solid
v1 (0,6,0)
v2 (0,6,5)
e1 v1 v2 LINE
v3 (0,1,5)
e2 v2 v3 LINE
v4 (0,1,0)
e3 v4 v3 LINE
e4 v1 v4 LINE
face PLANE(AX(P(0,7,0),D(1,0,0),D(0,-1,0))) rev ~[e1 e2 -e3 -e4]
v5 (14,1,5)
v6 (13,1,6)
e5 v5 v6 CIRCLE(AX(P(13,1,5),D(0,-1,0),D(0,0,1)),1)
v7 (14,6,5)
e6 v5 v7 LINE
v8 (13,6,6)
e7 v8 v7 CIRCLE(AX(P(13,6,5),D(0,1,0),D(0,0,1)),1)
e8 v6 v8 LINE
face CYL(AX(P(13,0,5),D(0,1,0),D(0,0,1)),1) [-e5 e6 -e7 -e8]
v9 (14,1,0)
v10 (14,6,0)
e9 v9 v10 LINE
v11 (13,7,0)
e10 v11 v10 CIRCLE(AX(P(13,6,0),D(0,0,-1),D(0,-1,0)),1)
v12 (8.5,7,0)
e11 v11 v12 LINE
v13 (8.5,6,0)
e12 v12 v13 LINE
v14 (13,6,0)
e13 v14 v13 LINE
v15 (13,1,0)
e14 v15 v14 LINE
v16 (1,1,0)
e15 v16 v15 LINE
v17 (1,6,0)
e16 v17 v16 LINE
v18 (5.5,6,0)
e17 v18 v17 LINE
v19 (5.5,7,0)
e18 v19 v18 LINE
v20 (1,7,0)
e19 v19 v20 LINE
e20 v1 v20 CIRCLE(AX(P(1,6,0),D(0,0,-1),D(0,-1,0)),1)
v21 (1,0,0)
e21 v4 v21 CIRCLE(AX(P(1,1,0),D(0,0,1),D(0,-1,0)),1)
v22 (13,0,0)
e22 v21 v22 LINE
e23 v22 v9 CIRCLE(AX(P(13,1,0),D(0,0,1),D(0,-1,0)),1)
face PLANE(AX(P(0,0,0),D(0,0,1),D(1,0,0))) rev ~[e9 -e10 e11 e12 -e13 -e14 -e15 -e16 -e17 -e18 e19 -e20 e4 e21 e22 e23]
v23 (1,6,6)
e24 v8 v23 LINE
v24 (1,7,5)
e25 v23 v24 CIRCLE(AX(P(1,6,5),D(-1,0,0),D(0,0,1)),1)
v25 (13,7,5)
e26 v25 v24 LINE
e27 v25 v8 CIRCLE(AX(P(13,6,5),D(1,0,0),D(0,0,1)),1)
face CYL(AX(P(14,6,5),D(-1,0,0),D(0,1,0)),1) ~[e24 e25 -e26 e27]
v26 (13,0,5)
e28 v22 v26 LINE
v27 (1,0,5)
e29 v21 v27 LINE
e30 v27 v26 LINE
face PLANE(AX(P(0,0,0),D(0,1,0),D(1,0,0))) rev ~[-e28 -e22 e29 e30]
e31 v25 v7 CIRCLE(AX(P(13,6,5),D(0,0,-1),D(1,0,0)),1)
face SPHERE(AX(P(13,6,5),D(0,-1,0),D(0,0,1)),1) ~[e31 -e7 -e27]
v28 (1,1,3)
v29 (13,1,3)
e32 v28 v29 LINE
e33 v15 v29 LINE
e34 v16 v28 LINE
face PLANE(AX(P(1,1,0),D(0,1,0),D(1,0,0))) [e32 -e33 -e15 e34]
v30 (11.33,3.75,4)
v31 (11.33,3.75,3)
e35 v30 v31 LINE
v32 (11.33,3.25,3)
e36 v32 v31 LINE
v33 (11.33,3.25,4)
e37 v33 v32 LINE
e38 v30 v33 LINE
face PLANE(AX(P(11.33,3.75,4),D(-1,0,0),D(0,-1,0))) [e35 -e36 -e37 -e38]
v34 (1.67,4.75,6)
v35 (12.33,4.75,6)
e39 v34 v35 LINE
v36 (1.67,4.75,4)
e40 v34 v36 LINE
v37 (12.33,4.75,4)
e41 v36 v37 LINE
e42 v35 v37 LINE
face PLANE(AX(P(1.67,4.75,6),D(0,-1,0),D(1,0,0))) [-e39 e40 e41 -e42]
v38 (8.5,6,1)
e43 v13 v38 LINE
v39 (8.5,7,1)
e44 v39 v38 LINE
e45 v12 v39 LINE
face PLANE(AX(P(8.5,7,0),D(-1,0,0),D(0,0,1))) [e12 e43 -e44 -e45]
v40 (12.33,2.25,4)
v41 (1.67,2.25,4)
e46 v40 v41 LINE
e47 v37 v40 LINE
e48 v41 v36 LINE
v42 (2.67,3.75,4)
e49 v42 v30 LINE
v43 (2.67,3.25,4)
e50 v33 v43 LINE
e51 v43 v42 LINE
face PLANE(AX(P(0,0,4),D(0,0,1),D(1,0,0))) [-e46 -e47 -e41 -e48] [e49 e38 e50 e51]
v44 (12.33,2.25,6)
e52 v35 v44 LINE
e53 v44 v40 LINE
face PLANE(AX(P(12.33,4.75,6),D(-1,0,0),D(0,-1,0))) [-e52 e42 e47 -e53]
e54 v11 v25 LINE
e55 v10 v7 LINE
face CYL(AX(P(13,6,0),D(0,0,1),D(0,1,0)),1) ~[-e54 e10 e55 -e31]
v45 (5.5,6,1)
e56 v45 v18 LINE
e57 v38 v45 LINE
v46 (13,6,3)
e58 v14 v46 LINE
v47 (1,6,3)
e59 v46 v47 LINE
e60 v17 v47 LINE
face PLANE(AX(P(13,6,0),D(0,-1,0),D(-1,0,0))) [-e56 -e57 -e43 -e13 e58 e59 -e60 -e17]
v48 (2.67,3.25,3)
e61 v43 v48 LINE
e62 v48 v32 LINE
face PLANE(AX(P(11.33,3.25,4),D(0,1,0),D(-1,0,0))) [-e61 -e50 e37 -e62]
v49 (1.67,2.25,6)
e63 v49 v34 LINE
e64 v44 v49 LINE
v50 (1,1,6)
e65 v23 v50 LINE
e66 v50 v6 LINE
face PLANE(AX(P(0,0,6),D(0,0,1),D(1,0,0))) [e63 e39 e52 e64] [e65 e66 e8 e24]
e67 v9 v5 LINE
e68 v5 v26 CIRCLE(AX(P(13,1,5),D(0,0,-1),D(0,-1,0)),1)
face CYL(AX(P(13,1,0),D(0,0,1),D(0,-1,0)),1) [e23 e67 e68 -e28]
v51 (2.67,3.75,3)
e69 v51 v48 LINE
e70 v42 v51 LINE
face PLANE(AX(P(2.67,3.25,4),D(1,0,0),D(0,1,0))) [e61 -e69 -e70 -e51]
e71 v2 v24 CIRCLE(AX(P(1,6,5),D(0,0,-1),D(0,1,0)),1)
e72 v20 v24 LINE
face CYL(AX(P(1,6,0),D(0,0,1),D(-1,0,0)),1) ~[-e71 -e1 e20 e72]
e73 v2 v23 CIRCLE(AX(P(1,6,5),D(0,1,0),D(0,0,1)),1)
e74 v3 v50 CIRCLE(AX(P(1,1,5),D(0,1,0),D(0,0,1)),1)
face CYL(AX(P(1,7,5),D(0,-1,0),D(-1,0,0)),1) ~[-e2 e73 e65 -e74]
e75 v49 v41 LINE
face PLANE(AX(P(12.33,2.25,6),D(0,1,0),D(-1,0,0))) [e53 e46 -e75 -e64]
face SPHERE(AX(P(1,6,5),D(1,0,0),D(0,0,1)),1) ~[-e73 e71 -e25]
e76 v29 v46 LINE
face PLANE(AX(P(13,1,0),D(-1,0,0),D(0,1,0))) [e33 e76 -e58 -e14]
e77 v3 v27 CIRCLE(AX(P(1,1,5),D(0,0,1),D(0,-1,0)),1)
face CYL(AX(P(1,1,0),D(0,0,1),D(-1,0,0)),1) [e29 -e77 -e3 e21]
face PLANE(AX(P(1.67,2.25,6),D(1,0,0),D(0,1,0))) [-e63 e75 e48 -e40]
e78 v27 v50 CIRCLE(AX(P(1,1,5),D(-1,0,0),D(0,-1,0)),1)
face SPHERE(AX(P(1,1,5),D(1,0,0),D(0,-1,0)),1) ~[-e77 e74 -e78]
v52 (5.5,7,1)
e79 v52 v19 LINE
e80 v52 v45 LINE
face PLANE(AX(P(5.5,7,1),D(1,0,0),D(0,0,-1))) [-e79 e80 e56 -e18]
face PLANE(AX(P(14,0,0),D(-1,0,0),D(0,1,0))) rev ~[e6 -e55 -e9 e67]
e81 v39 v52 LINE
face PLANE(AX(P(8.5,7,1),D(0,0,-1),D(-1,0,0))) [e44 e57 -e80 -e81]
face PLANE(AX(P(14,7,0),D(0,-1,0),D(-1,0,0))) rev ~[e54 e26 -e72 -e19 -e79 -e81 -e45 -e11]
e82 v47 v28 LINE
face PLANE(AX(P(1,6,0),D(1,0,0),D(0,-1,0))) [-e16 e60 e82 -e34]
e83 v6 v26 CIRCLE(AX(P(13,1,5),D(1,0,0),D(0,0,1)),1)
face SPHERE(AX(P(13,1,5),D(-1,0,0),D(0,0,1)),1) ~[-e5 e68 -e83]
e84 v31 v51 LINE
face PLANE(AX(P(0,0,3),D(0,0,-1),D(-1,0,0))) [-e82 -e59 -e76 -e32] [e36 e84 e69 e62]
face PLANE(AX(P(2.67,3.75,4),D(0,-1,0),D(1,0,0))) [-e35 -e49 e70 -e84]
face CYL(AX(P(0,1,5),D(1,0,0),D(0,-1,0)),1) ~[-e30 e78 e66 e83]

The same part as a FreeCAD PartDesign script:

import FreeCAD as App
import Part
import Sketcher
from FreeCAD import Vector


def edges_at(feature, points):
    """Names of the edges that pass closest to the given points."""
    edges = feature.Shape.Edges
    near = lambda p: min(range(len(edges)), key=lambda i: edges[i].distToShape(Part.Vertex(*p))[0])
    return sorted({f"Edge{near(p) + 1}" for p in points})


def add_polygon(sketch, points):
    """Adds a closed chain of lines whose ends are joined by coincident constraints."""
    first, n = sketch.GeometryCount, len(points)
    for a, b in zip(points, points[1:] + points[:1]):
        sketch.addGeometry(Part.LineSegment(App.Vector(*a, 0), App.Vector(*b, 0)), False)
    for i in range(n):
        sketch.addConstraint(Sketcher.Constraint("Coincident", first + i, 2, first + (i + 1) % n, 1))

doc = App.newDocument("Part")
body = doc.addObject("PartDesign::Body", "Body")

sketch1 = body.newObject("Sketcher::SketchObject", "Sketch")
sketch1.AttachmentSupport = (doc.getObject("XY_Plane"), [""])
sketch1.MapMode = "FlatFace"
add_polygon(sketch1, [(0, 7), (0, 0), (14, 0), (14, 7)])
sketch1.addConstraint(Sketcher.Constraint("Vertical", 0))
sketch1.addConstraint(Sketcher.Constraint("Horizontal", 1))
sketch1.addConstraint(Sketcher.Constraint("Vertical", 2))
sketch1.addConstraint(Sketcher.Constraint("Horizontal", 3))
sketch1.addConstraint(Sketcher.Constraint("Coincident", 0, 2, -1, 1))
sketch1.addConstraint(Sketcher.Constraint("DistanceX", 1, 1, 1, 2, 14.0))
sketch1.addConstraint(Sketcher.Constraint("DistanceY", 0, 2, 0, 1, 7.0))
pad1 = body.newObject("PartDesign::Pad", "Pad")
pad1.Profile = sketch1
pad1.Length = 6

sketch2 = body.newObject("Sketcher::SketchObject", "Sketch001")
sketch2.AttachmentSupport = (doc.getObject("XY_Plane"), [""])
sketch2.MapMode = "FlatFace"
sketch2.AttachmentOffset = App.Placement(Vector(0, 0, 6), App.Rotation())
add_polygon(sketch2, [(12.3, 4.8), (1.7, 4.8), (1.7, 2.2), (12.3, 2.2)])
sketch2.addConstraint(Sketcher.Constraint("Horizontal", 0))
sketch2.addConstraint(Sketcher.Constraint("Vertical", 1))
sketch2.addConstraint(Sketcher.Constraint("Horizontal", 2))
sketch2.addConstraint(Sketcher.Constraint("Vertical", 3))
sketch2.addConstraint(Sketcher.Constraint("DistanceY", 1, 2, 1, 1, 2.5))
sketch2.addConstraint(Sketcher.Constraint("DistanceX", 0, 2, 0, 1, 10.66))
sketch2.addConstraint(Sketcher.Constraint("DistanceX", -1, 1, 0, 2, 1.67))
sketch2.addConstraint(Sketcher.Constraint("DistanceY", -1, 1, 0, 2, 4.75))
pocket1 = body.newObject("PartDesign::Pocket", "Pocket")
pocket1.Profile = sketch2
pocket1.Length = 2

sketch3 = body.newObject("Sketcher::SketchObject", "Sketch002")
sketch3.AttachmentSupport = (doc.getObject("XY_Plane"), [""])
sketch3.MapMode = "FlatFace"
sketch3.AttachmentOffset = App.Placement(Vector(0, 0, 4), App.Rotation())
add_polygon(sketch3, [(11.3, 3.8), (2.7, 3.8), (2.7, 3.2), (11.3, 3.2)])
sketch3.addConstraint(Sketcher.Constraint("Horizontal", 0))
sketch3.addConstraint(Sketcher.Constraint("Vertical", 1))
sketch3.addConstraint(Sketcher.Constraint("Horizontal", 2))
sketch3.addConstraint(Sketcher.Constraint("Vertical", 3))
sketch3.addConstraint(Sketcher.Constraint("DistanceY", 1, 2, 1, 1, 0.5))
sketch3.addConstraint(Sketcher.Constraint("DistanceX", 0, 2, 0, 1, 8.66))
sketch3.addConstraint(Sketcher.Constraint("DistanceX", -1, 1, 0, 2, 2.67))
sketch3.addConstraint(Sketcher.Constraint("DistanceY", -1, 1, 0, 2, 3.75))
pocket2 = body.newObject("PartDesign::Pocket", "Pocket001")
pocket2.Profile = sketch3
pocket2.Length = 4

sketch4 = body.newObject("Sketcher::SketchObject", "Sketch003")
sketch4.AttachmentSupport = (doc.getObject("XY_Plane"), [""])
sketch4.MapMode = "FlatFace"
add_polygon(sketch4, [(1, 6), (13, 6), (13, 1), (1, 1)])
add_polygon(sketch4, [(11.3, 3.8), (2.7, 3.8), (2.7, 3.2), (11.3, 3.2)])
sketch4.addConstraint(Sketcher.Constraint("Horizontal", 0))
sketch4.addConstraint(Sketcher.Constraint("Vertical", 1))
sketch4.addConstraint(Sketcher.Constraint("Horizontal", 2))
sketch4.addConstraint(Sketcher.Constraint("Vertical", 3))
sketch4.addConstraint(Sketcher.Constraint("Horizontal", 4))
sketch4.addConstraint(Sketcher.Constraint("Vertical", 5))
sketch4.addConstraint(Sketcher.Constraint("Horizontal", 6))
sketch4.addConstraint(Sketcher.Constraint("Vertical", 7))
sketch4.addConstraint(Sketcher.Constraint("DistanceY", -1, 1, 1, 2, 1.0))
sketch4.addConstraint(Sketcher.Constraint("DistanceX", -1, 1, 2, 2, 1.0))
sketch4.addConstraint(Sketcher.Constraint("DistanceX", 0, 1, 0, 2, 12.0))
sketch4.addConstraint(Sketcher.Constraint("DistanceY", 1, 2, 1, 1, 5.0))
sketch4.addConstraint(Sketcher.Constraint("DistanceY", 5, 2, 5, 1, 0.5))
sketch4.addConstraint(Sketcher.Constraint("DistanceX", 4, 2, 4, 1, 8.66))
sketch4.addConstraint(Sketcher.Constraint("DistanceX", -1, 1, 4, 2, 2.67))
sketch4.addConstraint(Sketcher.Constraint("DistanceY", -1, 1, 4, 2, 3.75))
pocket3 = body.newObject("PartDesign::Pocket", "Pocket002")
pocket3.Profile = sketch4
pocket3.Length = 3
pocket3.Reversed = True

sketch5 = body.newObject("Sketcher::SketchObject", "Sketch004")
sketch5.AttachmentSupport = (doc.getObject("XZ_Plane"), [""])
sketch5.MapMode = "FlatFace"
sketch5.AttachmentOffset = App.Placement(Vector(0, 0, -7), App.Rotation())
add_polygon(sketch5, [(8.5, 1), (8.5, 0), (5.5, 0), (5.5, 1)])
sketch5.addConstraint(Sketcher.Constraint("Vertical", 0))
sketch5.addConstraint(Sketcher.Constraint("Horizontal", 1))
sketch5.addConstraint(Sketcher.Constraint("Vertical", 2))
sketch5.addConstraint(Sketcher.Constraint("Horizontal", 3))
sketch5.addConstraint(Sketcher.Constraint("PointOnObject", 0, 2, -1))
sketch5.addConstraint(Sketcher.Constraint("DistanceX", 1, 2, 1, 1, 3.0))
sketch5.addConstraint(Sketcher.Constraint("DistanceY", 0, 2, 0, 1, 1.0))
sketch5.addConstraint(Sketcher.Constraint("DistanceX", -1, 1, 1, 2, 5.5))
pocket4 = body.newObject("PartDesign::Pocket", "Pocket003")
pocket4.Profile = sketch5
pocket4.Length = 1
pocket4.Reversed = True
doc.recompute()

fillet = body.newObject("PartDesign::Fillet", "Fillet")
fillet.Base = (pocket4, edges_at(pocket4, [
    (7, 0, 6),
    (14, 3.5, 6),
    (14, 0, 3),
    (7, 7, 6),
    (14, 7, 3),
    (0, 0, 3),
    (0, 3.5, 6),
    (0, 7, 3),
]))
fillet.Radius = 1

doc.recompute()
